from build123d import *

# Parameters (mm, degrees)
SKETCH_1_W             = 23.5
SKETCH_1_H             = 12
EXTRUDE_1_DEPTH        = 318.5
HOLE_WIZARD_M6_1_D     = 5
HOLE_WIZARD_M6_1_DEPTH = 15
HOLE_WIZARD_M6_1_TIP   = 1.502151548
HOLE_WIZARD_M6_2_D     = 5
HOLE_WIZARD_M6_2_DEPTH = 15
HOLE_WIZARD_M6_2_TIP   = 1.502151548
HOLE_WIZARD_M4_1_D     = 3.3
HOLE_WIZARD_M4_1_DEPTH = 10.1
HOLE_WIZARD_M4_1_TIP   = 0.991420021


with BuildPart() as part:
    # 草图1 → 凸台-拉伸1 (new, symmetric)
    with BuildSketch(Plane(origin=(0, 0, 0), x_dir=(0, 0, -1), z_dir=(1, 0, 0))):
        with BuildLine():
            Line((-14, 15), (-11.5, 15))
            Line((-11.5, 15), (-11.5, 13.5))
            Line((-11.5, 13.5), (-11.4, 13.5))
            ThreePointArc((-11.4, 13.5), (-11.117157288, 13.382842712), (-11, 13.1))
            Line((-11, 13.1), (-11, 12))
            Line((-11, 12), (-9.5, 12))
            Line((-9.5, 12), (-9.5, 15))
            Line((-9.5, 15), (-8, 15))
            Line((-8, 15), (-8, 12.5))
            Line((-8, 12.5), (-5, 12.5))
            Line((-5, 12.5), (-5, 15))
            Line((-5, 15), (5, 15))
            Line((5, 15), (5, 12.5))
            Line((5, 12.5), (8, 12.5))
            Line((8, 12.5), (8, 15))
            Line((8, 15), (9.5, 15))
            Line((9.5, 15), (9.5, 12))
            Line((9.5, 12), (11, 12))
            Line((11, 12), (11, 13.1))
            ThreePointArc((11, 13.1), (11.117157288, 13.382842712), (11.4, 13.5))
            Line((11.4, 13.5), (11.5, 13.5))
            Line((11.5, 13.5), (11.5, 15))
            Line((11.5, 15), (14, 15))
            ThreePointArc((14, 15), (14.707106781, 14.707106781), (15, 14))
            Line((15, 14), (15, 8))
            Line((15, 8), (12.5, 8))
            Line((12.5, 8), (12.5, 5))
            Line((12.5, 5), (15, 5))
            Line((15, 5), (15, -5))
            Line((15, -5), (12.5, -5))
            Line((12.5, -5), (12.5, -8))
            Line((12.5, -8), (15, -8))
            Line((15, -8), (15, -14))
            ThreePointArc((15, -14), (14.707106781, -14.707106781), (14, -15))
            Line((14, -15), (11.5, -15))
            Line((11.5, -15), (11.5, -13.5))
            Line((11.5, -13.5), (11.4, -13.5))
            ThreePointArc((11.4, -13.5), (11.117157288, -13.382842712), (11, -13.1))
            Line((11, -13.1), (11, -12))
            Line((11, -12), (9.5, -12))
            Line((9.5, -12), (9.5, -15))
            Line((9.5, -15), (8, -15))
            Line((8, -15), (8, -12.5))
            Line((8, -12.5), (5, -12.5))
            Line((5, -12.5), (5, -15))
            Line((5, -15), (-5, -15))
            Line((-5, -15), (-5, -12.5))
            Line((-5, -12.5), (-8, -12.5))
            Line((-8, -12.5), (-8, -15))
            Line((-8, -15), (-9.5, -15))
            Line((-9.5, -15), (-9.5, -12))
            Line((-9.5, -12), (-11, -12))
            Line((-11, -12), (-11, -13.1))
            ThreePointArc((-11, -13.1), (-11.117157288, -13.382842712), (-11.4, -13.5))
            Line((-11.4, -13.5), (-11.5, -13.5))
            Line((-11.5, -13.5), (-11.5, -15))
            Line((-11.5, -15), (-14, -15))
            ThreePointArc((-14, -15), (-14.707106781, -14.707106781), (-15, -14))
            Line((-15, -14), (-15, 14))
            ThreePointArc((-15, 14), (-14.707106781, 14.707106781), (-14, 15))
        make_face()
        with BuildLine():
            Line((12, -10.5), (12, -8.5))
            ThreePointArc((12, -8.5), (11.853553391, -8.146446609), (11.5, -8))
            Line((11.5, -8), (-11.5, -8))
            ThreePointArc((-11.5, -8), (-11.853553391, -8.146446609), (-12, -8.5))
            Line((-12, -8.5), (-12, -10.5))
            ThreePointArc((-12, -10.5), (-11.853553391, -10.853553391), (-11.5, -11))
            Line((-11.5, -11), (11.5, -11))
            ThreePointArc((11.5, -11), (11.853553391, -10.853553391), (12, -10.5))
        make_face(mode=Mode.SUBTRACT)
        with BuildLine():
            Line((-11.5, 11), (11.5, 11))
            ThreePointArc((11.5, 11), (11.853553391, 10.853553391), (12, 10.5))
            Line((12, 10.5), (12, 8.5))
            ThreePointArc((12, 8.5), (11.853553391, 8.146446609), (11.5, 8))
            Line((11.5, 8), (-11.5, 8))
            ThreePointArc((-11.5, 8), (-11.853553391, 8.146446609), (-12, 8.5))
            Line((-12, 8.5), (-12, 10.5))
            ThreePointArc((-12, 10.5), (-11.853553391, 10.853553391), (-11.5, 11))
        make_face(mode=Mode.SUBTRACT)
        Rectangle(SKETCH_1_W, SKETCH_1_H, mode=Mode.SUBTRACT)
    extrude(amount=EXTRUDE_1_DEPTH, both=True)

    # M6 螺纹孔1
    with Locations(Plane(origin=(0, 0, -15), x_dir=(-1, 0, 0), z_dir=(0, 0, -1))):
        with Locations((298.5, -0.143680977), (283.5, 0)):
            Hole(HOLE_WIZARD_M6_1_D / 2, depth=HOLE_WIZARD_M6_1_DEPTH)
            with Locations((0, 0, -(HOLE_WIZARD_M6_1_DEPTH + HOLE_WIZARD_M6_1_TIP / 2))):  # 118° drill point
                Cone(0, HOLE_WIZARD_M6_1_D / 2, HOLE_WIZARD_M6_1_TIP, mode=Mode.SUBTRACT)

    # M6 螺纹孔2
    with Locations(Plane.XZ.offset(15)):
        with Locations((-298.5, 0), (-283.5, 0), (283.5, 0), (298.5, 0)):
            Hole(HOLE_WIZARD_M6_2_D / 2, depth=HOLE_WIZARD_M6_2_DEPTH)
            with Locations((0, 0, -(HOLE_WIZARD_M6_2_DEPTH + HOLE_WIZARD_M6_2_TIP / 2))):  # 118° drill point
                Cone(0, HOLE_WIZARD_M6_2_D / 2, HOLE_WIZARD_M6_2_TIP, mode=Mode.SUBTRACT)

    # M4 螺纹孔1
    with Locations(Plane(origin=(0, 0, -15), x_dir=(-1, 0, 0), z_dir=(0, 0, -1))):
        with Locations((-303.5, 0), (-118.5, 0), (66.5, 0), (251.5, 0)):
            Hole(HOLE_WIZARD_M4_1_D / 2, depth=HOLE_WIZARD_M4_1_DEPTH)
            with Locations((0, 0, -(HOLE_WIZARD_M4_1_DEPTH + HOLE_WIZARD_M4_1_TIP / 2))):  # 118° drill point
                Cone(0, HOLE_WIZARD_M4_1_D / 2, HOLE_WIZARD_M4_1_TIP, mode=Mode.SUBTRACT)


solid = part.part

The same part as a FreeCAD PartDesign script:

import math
import FreeCAD as App
import Part
import Sketcher
Q = App.Units.Quantity


def add_polygon(sketch, points):
    """Adds a closed chain of lines whose ends are joined by coincident constraints."""
    first, n = sketch.GeometryCount, len(points)
    for a, b in zip(points, points[1:] + points[:1]):
        sketch.addGeometry(Part.LineSegment(App.Vector(*a, 0), App.Vector(*b, 0)), False)
    for i in range(n):
        sketch.addConstraint(Sketcher.Constraint("Coincident", first + i, 2, first + (i + 1) % n, 1))

doc = App.newDocument("Part")
body = doc.addObject("PartDesign::Body", "Body")

sketch1 = doc.addObject("Sketcher::SketchObject", "Sketch")
body.addObject(sketch1)
sketch1.AttachmentSupport = (doc.YZ_Plane, [""])
sketch1.MapMode = "FlatFace"
sketch1.addGeometry(Part.LineSegment(App.Vector(15, 11.5, 0), App.Vector(15, 14, 0)), False)
sketch1.addGeometry(Part.ArcOfCircle(Part.Circle(App.Vector(14, 14, 0), App.Vector(0, 0, 1), 1), math.radians(0), math.radians(90)), False)
sketch1.addGeometry(Part.LineSegment(App.Vector(14, 15, 0), App.Vector(-14, 15, 0)), False)
sketch1.addGeometry(Part.ArcOfCircle(Part.Circle(App.Vector(-14, 14, 0), App.Vector(0, 0, 1), 1), math.radians(90), math.radians(180)), False)
sketch1.addGeometry(Part.LineSegment(App.Vector(-15, 14, 0), App.Vector(-15, 11.5, 0)), False)
sketch1.addGeometry(Part.LineSegment(App.Vector(-15, 11.5, 0), App.Vector(-13.5, 11.5, 0)), False)
sketch1.addGeometry(Part.LineSegment(App.Vector(-13.5, 11.5, 0), App.Vector(-13.5, 11.4, 0)), False)
sketch1.addGeometry(Part.ArcOfCircle(Part.Circle(App.Vector(-13.1, 11.4, 0), App.Vector(0, 0, 1), 0.4), math.radians(-180), math.radians(-90)), False)
sketch1.addGeometry(Part.LineSegment(App.Vector(-13.1, 11, 0), App.Vector(-12, 11, 0)), False)
sketch1.addGeometry(Part.LineSegment(App.Vector(-12, 11, 0), App.Vector(-12, 9.5, 0)), False)
sketch1.addGeometry(Part.LineSegment(App.Vector(-12, 9.5, 0), App.Vector(-15, 9.5, 0)), False)
sketch1.addGeometry(Part.LineSegment(App.Vector(-15, 9.5, 0), App.Vector(-15, 8, 0)), False)
sketch1.addGeometry(Part.LineSegment(App.Vector(-15, 8, 0), App.Vector(-12.5, 8, 0)), False)
sketch1.addGeometry(Part.LineSegment(App.Vector(-12.5, 8, 0), App.Vector(-12.5, 5, 0)), False)
sketch1.addGeometry(Part.LineSegment(App.Vector(-12.5, 5, 0), App.Vector(-15, 5, 0)), False)
sketch1.addGeometry(Part.LineSegment(App.Vector(-15, 5, 0), App.Vector(-15, -5, 0)), False)
sketch1.addGeometry(Part.LineSegment(App.Vector(-15, -5, 0), App.Vector(-12.5, -5, 0)), False)
sketch1.addGeometry(Part.LineSegment(App.Vector(-12.5, -5, 0), App.Vector(-12.5, -8, 0)), False)
sketch1.addGeometry(Part.LineSegment(App.Vector(-12.5, -8, 0), App.Vector(-15, -8, 0)), False)
sketch1.addGeometry(Part.LineSegment(App.Vector(-15, -8, 0), App.Vector(-15, -9.5, 0)), False)
sketch1.addGeometry(Part.LineSegment(App.Vector(-15, -9.5, 0), App.Vector(-12, -9.5, 0)), False)
sketch1.addGeometry(Part.LineSegment(App.Vector(-12, -9.5, 0), App.Vector(-12, -11, 0)), False)
sketch1.addGeometry(Part.LineSegment(App.Vector(-12, -11, 0), App.Vector(-13.1, -11, 0)), False)
sketch1.addGeometry(Part.ArcOfCircle(Part.Circle(App.Vector(-13.1, -11.4, 0), App.Vector(0, 0, 1), 0.4), math.radians(90), math.radians(180)), False)
sketch1.addGeometry(Part.LineSegment(App.Vector(-13.5, -11.4, 0), App.Vector(-13.5, -11.5, 0)), False)
sketch1.addGeometry(Part.LineSegment(App.Vector(-13.5, -11.5, 0), App.Vector(-15, -11.5, 0)), False)
sketch1.addGeometry(Part.LineSegment(App.Vector(-15, -11.5, 0), App.Vector(-15, -14, 0)), False)
sketch1.addGeometry(Part.ArcOfCircle(Part.Circle(App.Vector(-14, -14, 0), App.Vector(0, 0, 1), 1), math.radians(-180), math.radians(-90)), False)
sketch1.addGeometry(Part.LineSegment(App.Vector(-14, -15, 0), App.Vector(-8, -15, 0)), False)
sketch1.addGeometry(Part.LineSegment(App.Vector(-8, -15, 0), App.Vector(-8, -12.5, 0)), False)
sketch1.addGeometry(Part.LineSegment(App.Vector(-8, -12.5, 0), App.Vector(-5, -12.5, 0)), False)
sketch1.addGeometry(Part.LineSegment(App.Vector(-5, -12.5, 0), App.Vector(-5, -15, 0)), False)
sketch1.addGeometry(Part.LineSegment(App.Vector(-5, -15, 0), App.Vector(5, -15, 0)), False)
sketch1.addGeometry(Part.LineSegment(App.Vector(5, -15, 0), App.Vector(5, -12.5, 0)), False)
sketch1.addGeometry(Part.LineSegment(App.Vector(5, -12.5, 0), App.Vector(8, -12.5, 0)), False)
sketch1.addGeometry(Part.LineSegment(App.Vector(8, -12.5, 0), App.Vector(8, -15, 0)), False)
sketch1.addGeometry(Part.LineSegment(App.Vector(8, -15, 0), App.Vector(14, -15, 0)), False)
sketch1.addGeometry(Part.ArcOfCircle(Part.Circle(App.Vector(14, -14, 0), App.Vector(0, 0, 1), 1), math.radians(-90), math.radians(0)), False)
sketch1.addGeometry(Part.LineSegment(App.Vector(15, -14, 0), App.Vector(15, -11.5, 0)), False)
sketch1.addGeometry(Part.LineSegment(App.Vector(15, -11.5, 0), App.Vector(13.5, -11.5, 0)), False)
sketch1.addGeometry(Part.LineSegment(App.Vector(13.5, -11.5, 0), App.Vector(13.5, -11.4, 0)), False)
sketch1.addGeometry(Part.ArcOfCircle(Part.Circle(App.Vector(13.1, -11.4, 0), App.Vector(0, 0, 1), 0.4), math.radians(0), math.radians(90)), False)
sketch1.addGeometry(Part.LineSegment(App.Vector(13.1, -11, 0), App.Vector(12, -11, 0)), False)
sketch1.addGeometry(Part.LineSegment(App.Vector(12, -11, 0), App.Vector(12, -9.5, 0)), False)
sketch1.addGeometry(Part.LineSegment(App.Vector(12, -9.5, 0), App.Vector(15, -9.5, 0)), False)
sketch1.addGeometry(Part.LineSegment(App.Vector(15, -9.5, 0), App.Vector(15, -8, 0)), False)
sketch1.addGeometry(Part.LineSegment(App.Vector(15, -8, 0), App.Vector(12.5, -8, 0)), False)
sketch1.addGeometry(Part.LineSegment(App.Vector(12.5, -8, 0), App.Vector(12.5, -5, 0)), False)
sketch1.addGeometry(Part.LineSegment(App.Vector(12.5, -5, 0), App.Vector(15, -5, 0)), False)
sketch1.addGeometry(Part.LineSegment(App.Vector(15, -5, 0), App.Vector(15, 5, 0)), False)
sketch1.addGeometry(Part.LineSegment(App.Vector(15, 5, 0), App.Vector(12.5, 5, 0)), False)
sketch1.addGeometry(Part.LineSegment(App.Vector(12.5, 5, 0), App.Vector(12.5, 8, 0)), False)
sketch1.addGeometry(Part.LineSegment(App.Vector(12.5, 8, 0), App.Vector(15, 8, 0)), False)
sketch1.addGeometry(Part.LineSegment(App.Vector(15, 8, 0), App.Vector(15, 9.5, 0)), False)
sketch1.addGeometry(Part.LineSegment(App.Vector(15, 9.5, 0), App.Vector(12, 9.5, 0)), False)
sketch1.addGeometry(Part.LineSegment(App.Vector(12, 9.5, 0), App.Vector(12, 11, 0)), False)
sketch1.addGeometry(Part.LineSegment(App.Vector(12, 11, 0), App.Vector(13.1, 11, 0)), False)
sketch1.addGeometry(Part.ArcOfCircle(Part.Circle(App.Vector(13.1, 11.4, 0), App.Vector(0, 0, 1), 0.4), math.radians(-90), math.radians(0)), False)
sketch1.addGeometry(Part.LineSegment(App.Vector(13.5, 11.4, 0), App.Vector(13.5, 11.5, 0)), False)
sketch1.addGeometry(Part.LineSegment(App.Vector(13.5, 11.5, 0), App.Vector(15, 11.5, 0)), False)
sketch1.addGeometry(Part.ArcOfCircle(Part.Circle(App.Vector(-10.5, -11.5, 0), App.Vector(0, 0, 1), 0.5), math.radians(180), math.radians(270)), False)
sketch1.addGeometry(Part.LineSegment(App.Vector(-11, -11.5, 0), App.Vector(-11, 11.5, 0)), False)
sketch1.addGeometry(Part.ArcOfCircle(Part.Circle(App.Vector(-10.5, 11.5, 0), App.Vector(0, 0, 1), 0.5), math.radians(90), math.radians(180)), False)
sketch1.addGeometry(Part.LineSegment(App.Vector(-10.5, 12, 0), App.Vector(-8.5, 12, 0)), False)
sketch1.addGeometry(Part.ArcOfCircle(Part.Circle(App.Vector(-8.5, 11.5, 0), App.Vector(0, 0, 1), 0.5), math.radians(0), math.radians(90)), False)
sketch1.addGeometry(Part.LineSegment(App.Vector(-8, 11.5, 0), App.Vector(-8, -11.5, 0)), False)
sketch1.addGeometry(Part.ArcOfCircle(Part.Circle(App.Vector(-8.5, -11.5, 0), App.Vector(0, 0, 1), 0.5), math.radians(-90), math.radians(0)), False)
sketch1.addGeometry(Part.LineSegment(App.Vector(-8.5, -12, 0), App.Vector(-10.5, -12, 0)), False)
add_polygon(sketch1, [(-6, 11.75), (6, 11.75), (6, -11.75), (-6, -11.75)])
sketch1.addGeometry(Part.LineSegment(App.Vector(11, 11.5, 0), App.Vector(11, -11.5, 0)), False)
sketch1.addGeometry(Part.ArcOfCircle(Part.Circle(App.Vector(10.5, -11.5, 0), App.Vector(0, 0, 1), 0.5), math.radians(-90), math.radians(0)), False)
sketch1.addGeometry(Part.LineSegment(App.Vector(10.5, -12, 0), App.Vector(8.5, -12, 0)), False)
sketch1.addGeometry(Part.ArcOfCircle(Part.Circle(App.Vector(8.5, -11.5, 0), App.Vector(0, 0, 1), 0.5), math.radians(180), math.radians(270)), False)
sketch1.addGeometry(Part.LineSegment(App.Vector(8, -11.5, 0), App.Vector(8, 11.5, 0)), False)
sketch1.addGeometry(Part.ArcOfCircle(Part.Circle(App.Vector(8.5, 11.5, 0), App.Vector(0, 0, 1), 0.5), math.radians(90), math.radians(180)), False)
sketch1.addGeometry(Part.LineSegment(App.Vector(8.5, 12, 0), App.Vector(10.5, 12, 0)), False)
sketch1.addGeometry(Part.ArcOfCircle(Part.Circle(App.Vector(10.5, 11.5, 0), App.Vector(0, 0, 1), 0.5), math.radians(0), math.radians(90)), False)
sketch1.addConstraint([
    Sketcher.Constraint("Tangent", 0, 2, 1, 1),
    Sketcher.Constraint("Tangent", 1, 2, 2, 1),
    Sketcher.Constraint("Tangent", 2, 2, 3, 1),
    Sketcher.Constraint("Tangent", 3, 2, 4, 1),
    Sketcher.Constraint("Coincident", 4, 2, 5, 1),
    Sketcher.Constraint("Coincident", 5, 2, 6, 1),
    Sketcher.Constraint("Tangent", 6, 2, 7, 1),
    Sketcher.Constraint("Tangent", 7, 2, 8, 1),
    Sketcher.Constraint("Coincident", 8, 2, 9, 1),
    Sketcher.Constraint("Coincident", 9, 2, 10, 1),
    Sketcher.Constraint("Coincident", 10, 2, 11, 1),
    Sketcher.Constraint("Coincident", 11, 2, 12, 1),
    Sketcher.Constraint("Coincident", 12, 2, 13, 1),
    Sketcher.Constraint("Coincident", 13, 2, 14, 1),
    Sketcher.Constraint("Coincident", 14, 2, 15, 1),
    Sketcher.Constraint("Coincident", 15, 2, 16, 1),
    Sketcher.Constraint("Coincident", 16, 2, 17, 1),
    Sketcher.Constraint("Coincident", 17, 2, 18, 1),
    Sketcher.Constraint("Coincident", 18, 2, 19, 1),
    Sketcher.Constraint("Coincident", 19, 2, 20, 1),
    Sketcher.Constraint("Coincident", 20, 2, 21, 1),
    Sketcher.Constraint("Coincident", 21, 2, 22, 1),
    Sketcher.Constraint("Tangent", 22, 2, 23, 1),
    Sketcher.Constraint("Tangent", 23, 2, 24, 1),
    Sketcher.Constraint("Coincident", 24, 2, 25, 1),
    Sketcher.Constraint("Coincident", 25, 2, 26, 1),
    Sketcher.Constraint("Tangent", 26, 2, 27, 1),
    Sketcher.Constraint("Tangent", 27, 2, 28, 1),
    Sketcher.Constraint("Coincident", 28, 2, 29, 1),
    Sketcher.Constraint("Coincident", 29, 2, 30, 1),
    Sketcher.Constraint("Coincident", 30, 2, 31, 1),
    Sketcher.Constraint("Coincident", 31, 2, 32, 1),
    Sketcher.Constraint("Coincident", 32, 2, 33, 1),
    Sketcher.Constraint("Coincident", 33, 2, 34, 1),
    Sketcher.Constraint("Coincident", 34, 2, 35, 1),
    Sketcher.Constraint("Coincident", 35, 2, 36, 1),
    Sketcher.Constraint("Tangent", 36, 2, 37, 1),
    Sketcher.Constraint("Tangent", 37, 2, 38, 1),
    Sketcher.Constraint("Coincident", 38, 2, 39, 1),
    Sketcher.Constraint("Coincident", 39, 2, 40, 1),
    Sketcher.Constraint("Tangent", 40, 2, 41, 1),
    Sketcher.Constraint("Tangent", 41, 2, 42, 1),
    Sketcher.Constraint("Coincident", 42, 2, 43, 1),
    Sketcher.Constraint("Coincident", 43, 2, 44, 1),
    Sketcher.Constraint("Coincident", 44, 2, 45, 1),
    Sketcher.Constraint("Coincident", 45, 2, 46, 1),
    Sketcher.Constraint("Coincident", 46, 2, 47, 1),
    Sketcher.Constraint("Coincident", 47, 2, 48, 1),
    Sketcher.Constraint("Coincident", 48, 2, 49, 1),
    Sketcher.Constraint("Coincident", 49, 2, 50, 1),
    Sketcher.Constraint("Coincident", 50, 2, 51, 1),
    Sketcher.Constraint("Coincident", 51, 2, 52, 1),
    Sketcher.Constraint("Coincident", 52, 2, 53, 1),
    Sketcher.Constraint("Coincident", 53, 2, 54, 1),
    Sketcher.Constraint("Coincident", 54, 2, 55, 1),
    Sketcher.Constraint("Coincident", 55, 2, 56, 1),
    Sketcher.Constraint("Tangent", 56, 2, 57, 1),
    Sketcher.Constraint("Tangent", 57, 2, 58, 1),
    Sketcher.Constraint("Coincident", 58, 2, 59, 1),
    Sketcher.Constraint("Coincident", 59, 2, 0, 1),
    Sketcher.Constraint("Tangent", 60, 1, 61, 1),
    Sketcher.Constraint("Tangent", 61, 2, 62, 2),
    Sketcher.Constraint("Tangent", 62, 1, 63, 1),
    Sketcher.Constraint("Tangent", 63, 2, 64, 2),
    Sketcher.Constraint("Tangent", 64, 1, 65, 1),
    Sketcher.Constraint("Tangent", 65, 2, 66, 2),
    Sketcher.Constraint("Tangent", 66, 1, 67, 1),
    Sketcher.Constraint("Tangent", 67, 2, 60, 2),
    Sketcher.Constraint("Tangent", 72, 2, 73, 2),
    Sketcher.Constraint("Tangent", 73, 1, 74, 1),
    Sketcher.Constraint("Tangent", 74, 2, 75, 2),
    Sketcher.Constraint("Tangent", 75, 1, 76, 1),
    Sketcher.Constraint("Tangent", 76, 2, 77, 2),
    Sketcher.Constraint("Tangent", 77, 1, 78, 1),
    Sketcher.Constraint("Tangent", 78, 2, 79, 2),
    Sketcher.Constraint("Tangent", 79, 1, 72, 1),
    Sketcher.Constraint("Vertical", 0),
    Sketcher.Constraint("Horizontal", 2),
    Sketcher.Constraint("Vertical", 4),
    Sketcher.Constraint("Horizontal", 5),
    Sketcher.Constraint("Vertical", 6),
    Sketcher.Constraint("Horizontal", 8),
    Sketcher.Constraint("Vertical", 9),
    Sketcher.Constraint("Horizontal", 10),
    Sketcher.Constraint("Vertical", 11),
    Sketcher.Constraint("Horizontal", 12),
    Sketcher.Constraint("Vertical", 13),
    Sketcher.Constraint("Horizontal", 14),
    Sketcher.Constraint("Vertical", 15),
    Sketcher.Constraint("Horizontal", 16),
    Sketcher.Constraint("Vertical", 17),
    Sketcher.Constraint("Horizontal", 18),
    Sketcher.Constraint("Vertical", 19),
    Sketcher.Constraint("Horizontal", 20),
    Sketcher.Constraint("Vertical", 21),
    Sketcher.Constraint("Horizontal", 22),
    Sketcher.Constraint("Vertical", 24),
    Sketcher.Constraint("Horizontal", 25),
    Sketcher.Constraint("Vertical", 26),
    Sketcher.Constraint("Horizontal", 28),
    Sketcher.Constraint("Vertical", 29),
    Sketcher.Constraint("Horizontal", 30),
    Sketcher.Constraint("Vertical", 31),
    Sketcher.Constraint("Horizontal", 32),
    Sketcher.Constraint("Vertical", 33),
    Sketcher.Constraint("Horizontal", 34),
    Sketcher.Constraint("Vertical", 35),
    Sketcher.Constraint("Horizontal", 36),
    Sketcher.Constraint("Vertical", 38),
    Sketcher.Constraint("Horizontal", 39),
    Sketcher.Constraint("Vertical", 40),
    Sketcher.Constraint("Horizontal", 42),
    Sketcher.Constraint("Vertical", 43),
    Sketcher.Constraint("Horizontal", 44),
    Sketcher.Constraint("Vertical", 45),
    Sketcher.Constraint("Horizontal", 46),
    Sketcher.Constraint("Vertical", 47),
    Sketcher.Constraint("Horizontal", 48),
    Sketcher.Constraint("Vertical", 49),
    Sketcher.Constraint("Horizontal", 50),
    Sketcher.Constraint("Vertical", 51),
    Sketcher.Constraint("Horizontal", 52),
    Sketcher.Constraint("Vertical", 53),
    Sketcher.Constraint("Horizontal", 54),
    Sketcher.Constraint("Vertical", 55),
    Sketcher.Constraint("Horizontal", 56),
    Sketcher.Constraint("Vertical", 58),
    Sketcher.Constraint("Horizontal", 59),
    Sketcher.Constraint("Vertical", 61),
    Sketcher.Constraint("Horizontal", 63),
    Sketcher.Constraint("Vertical", 65),
    Sketcher.Constraint("Horizontal", 67),
    Sketcher.Constraint("Horizontal", 68),
    Sketcher.Constraint("Vertical", 69),
    Sketcher.Constraint("Horizontal", 70),
    Sketcher.Constraint("Vertical", 71),
    Sketcher.Constraint("Vertical", 72),
    Sketcher.Constraint("Horizontal", 74),
    Sketcher.Constraint("Vertical", 76),
    Sketcher.Constraint("Horizontal", 78),
    Sketcher.Constraint("Equal", 1, 3),
    Sketcher.Constraint("Equal", 7, 23),
    Sketcher.Constraint("Equal", 3, 27),
    Sketcher.Constraint("Equal", 27, 37),
    Sketcher.Constraint("Equal", 23, 41),
    Sketcher.Constraint("Equal", 41, 57),
    Sketcher.Constraint("Equal", 60, 62),
    Sketcher.Constraint("Equal", 62, 64),
    Sketcher.Constraint("Equal", 64, 66),
    Sketcher.Constraint("Equal", 66, 73),
    Sketcher.Constraint("Equal", 73, 75),
    Sketcher.Constraint("Equal", 75, 77),
    Sketcher.Constraint("Equal", 77, 79),
    Sketcher.Constraint("Symmetric", 1, 3, 27, 3, -1, 1),
    Sketcher.Constraint("Symmetric", 3, 3, 37, 3, -1, 1),
    Sketcher.Constraint("Symmetric", 7, 3, 41, 3, -1, 1),
    Sketcher.Constraint("Symmetric", 23, 3, 57, 3, -1, 1),
    Sketcher.Constraint("Symmetric", 62, 3, 73, 3, -1, 1),
    Sketcher.Constraint("Symmetric", 66, 3, 77, 3, -1, 1),
    Sketcher.Constraint("Symmetric", 9, 2, 43, 2, -1, 1),
    Sketcher.Constraint("Symmetric", 11, 2, 45, 2, -1, 1),
    Sketcher.Constraint("Symmetric", 13, 2, 47, 2, -1, 1),
    Sketcher.Constraint("Symmetric", 15, 2, 49, 2, -1, 1),
    Sketcher.Constraint("Symmetric", 17, 2, 51, 2, -1, 1),
    Sketcher.Constraint("Symmetric", 19, 2, 53, 2, -1, 1),
    Sketcher.Constraint("Symmetric", 68, 2, 70, 2, -1, 1),
    Sketcher.Constraint("Symmetric", 23, 3, 41, 3, -2),
    Sketcher.Constraint("Symmetric", 30, 2, 33, 2, -2),
    Sketcher.Constraint("Symmetric", 25, 2, 38, 2, -2),
    Sketcher.Constraint("Symmetric", 20, 2, 43, 2, -2),
    Sketcher.Constraint("Symmetric", 18, 2, 45, 2, -2),
    Sketcher.Constraint("Symmetric", 16, 2, 47, 2, -2),
    Sketcher.Constraint("Horizontal", 66, 3, 73, 3),
    Sketcher.Constraint("Horizontal", 79, 3, 4, 2),
    Sketcher.Constraint("Horizontal", 75, 3, 24, 2),
    Sketcher.Constraint("Horizontal", 28, 2, 31, 2),
    Sketcher.Constraint("Horizontal", 5, 2, 58, 2),
    Sketcher.Constraint("Vertical", 4, 2, 10, 2),
    Sketcher.Constraint("Vertical", 11, 2, 14, 2),
    Sketcher.Constraint("Vertical", 43, 2, 54, 2),
    Sketcher.Constraint("Vertical", 29, 2, 64, 1),
    Sketcher.Constraint("Vertical", 35, 2, 75, 1),
    Sketcher.Constraint("Equal", 20, 30),
    Sketcher.Constraint("Equal", 52, 0),
    Sketcher.Constraint("Equal", 59, 9),
    Sketcher.Constraint("Equal", 9, 11),
    Sketcher.Constraint("Equal", 54, 13),
    Sketcher.Constraint("Equal", 32, 15),
    Sketcher.Constraint("Equal", 26, 29),
    Sketcher.Constraint("Radius", 1, Q("1 mm")),
    Sketcher.Constraint("Radius", 7, Q("0.4 mm")),
    Sketcher.Constraint("Radius", 60, Q("0.5 mm")),
    Sketcher.Constraint("DistanceX", 2, 2, 2, 1, Q("28 mm")),
    Sketcher.Constraint("DistanceX", 10, 2, 10, 1, Q("3 mm")),
    Sketcher.Constraint("DistanceX", 28, 1, 28, 2, Q("6 mm")),
    Sketcher.Constraint("DistanceX", 63, 1, 63, 2, Q("2 mm")),
    Sketcher.Constraint("DistanceX", 68, 1, 68, 2, Q("12 mm")),
    Sketcher.Constraint("DistanceY", 61, 1, 61, 2, Q("23 mm")),
    Sketcher.Constraint("DistanceX", 5, 1, 5, 2, Q("1.5 mm")),
    Sketcher.Constraint("DistanceX", 12, 1, 12, 2, Q("2.5 mm")),
    Sketcher.Constraint("DistanceY", 69, 2, 69, 1, Q("23.5 mm")),
])
pad1 = doc.addObject("PartDesign::Pad", "Pad")
body.addObject(pad1)
pad1.Profile = sketch1
pad1.Length = 637
pad1.Midplane = True

sketch2 = doc.addObject("Sketcher::SketchObject", "Sketch001")
body.addObject(sketch2)
sketch2.AttachmentSupport = (doc.XY_Plane, [""])
sketch2.MapMode = "FlatFace"
sketch2.AttachmentOffset = App.Placement(App.Vector(0, 0, -15), App.Rotation())
sketch2.addGeometry([
    Part.Circle(App.Vector(-298.5, -0.143681, 0), App.Vector(0, 0, 1), 2.5),
    Part.Circle(App.Vector(-283.5, 0, 0), App.Vector(0, 0, 1), 2.5),
], False)
sketch2.addConstraint([
    Sketcher.Constraint("Equal", 0, 1),
    Sketcher.Constraint("PointOnObject", 1, 3, -1),
    Sketcher.Constraint("Diameter", 0, Q("5 mm")),
    Sketcher.Constraint("DistanceX", 0, 3, 1, 3, Q("15 mm")),
    Sketcher.Constraint("DistanceX", 0, 3, -1, 1, Q("298.5 mm")),
    Sketcher.Constraint("DistanceY", 0, 3, -1, 1, Q("0.143681 mm")),
])
doc.recompute()
hole = doc.addObject("PartDesign::Hole", "Hole")
body.addObject(hole)
hole.Profile = sketch2
hole.ThreadType = "None"
hole.Diameter = 5
hole.DepthType = "Dimension"
hole.Depth = 15
hole.DrillPoint = "Angled"
hole.DrillPointAngle = 118
hole.Reversed = True

sketch3 = doc.addObject("Sketcher::SketchObject", "Sketch002")
body.addObject(sketch3)
sketch3.AttachmentSupport = (doc.XZ_Plane, [""])
sketch3.MapMode = "FlatFace"
sketch3.AttachmentOffset = App.Placement(App.Vector(0, 0, 15), App.Rotation())
sketch3.addGeometry([
    Part.Circle(App.Vector(-298.5, 0, 0), App.Vector(0, 0, 1), 2.5),
    Part.Circle(App.Vector(-283.5, 0, 0), App.Vector(0, 0, 1), 2.5),
    Part.Circle(App.Vector(283.5, 0, 0), App.Vector(0, 0, 1), 2.5),
    Part.Circle(App.Vector(298.5, 0, 0), App.Vector(0, 0, 1), 2.5),
], False)
sketch3.addConstraint([
    Sketcher.Constraint("Equal", 0, 1),
    Sketcher.Constraint("Equal", 1, 2),
    Sketcher.Constraint("Equal", 2, 3),
    Sketcher.Constraint("Symmetric", 1, 3, 2, 3, -1, 1),
    Sketcher.Constraint("Symmetric", 0, 3, 3, 3, -1, 1),
    Sketcher.Constraint("PointOnObject", 0, 3, -1),
    Sketcher.Constraint("PointOnObject", 1, 3, -1),
    Sketcher.Constraint("Diameter", 0, Q("5 mm")),
    Sketcher.Constraint("DistanceX", 0, 3, 1, 3, Q("15 mm")),
    Sketcher.Constraint("DistanceX", 1, 3, 2, 3, Q("567 mm")),
])
doc.recompute()
hole2 = doc.addObject("PartDesign::Hole", "Hole001")
body.addObject(hole2)
hole2.Profile = sketch3
hole2.ThreadType = "None"
hole2.Diameter = 5
hole2.DepthType = "Dimension"
hole2.Depth = 15
hole2.DrillPoint = "Angled"
hole2.DrillPointAngle = 118

sketch4 = doc.addObject("Sketcher::SketchObject", "Sketch003")
body.addObject(sketch4)
sketch4.AttachmentSupport = (doc.XY_Plane, [""])
sketch4.MapMode = "FlatFace"
sketch4.AttachmentOffset = App.Placement(App.Vector(0, 0, -15), App.Rotation())
sketch4.addGeometry([
    Part.Circle(App.Vector(303.5, 0, 0), App.Vector(0, 0, 1), 1.65),
    Part.Circle(App.Vector(118.5, 0, 0), App.Vector(0, 0, 1), 1.65),
    Part.Circle(App.Vector(-66.5, 0, 0), App.Vector(0, 0, 1), 1.65),
    Part.Circle(App.Vector(-251.5, 0, 0), App.Vector(0, 0, 1), 1.65),
], False)
sketch4.addConstraint([
    Sketcher.Constraint("Equal", 0, 1),
    Sketcher.Constraint("Equal", 1, 2),
    Sketcher.Constraint("Equal", 2, 3),
    Sketcher.Constraint("PointOnObject", 0, 3, -1),
    Sketcher.Constraint("PointOnObject", 1, 3, -1),
    Sketcher.Constraint("PointOnObject", 2, 3, -1),
    Sketcher.Constraint("PointOnObject", 3, 3, -1),
    Sketcher.Constraint("Diameter", 0, Q("3.3 mm")),
    Sketcher.Constraint("DistanceX", 1, 3, 0, 3, Q("185 mm")),
    Sketcher.Constraint("DistanceX", 2, 3, 1, 3, Q("185 mm")),
    Sketcher.Constraint("DistanceX", 3, 3, 2, 3, Q("185 mm")),
    Sketcher.Constraint("DistanceX", -1, 1, 0, 3, Q("303.5 mm")),
])
doc.recompute()
hole3 = doc.addObject("PartDesign::Hole", "Hole002")
body.addObject(hole3)
hole3.Profile = sketch4
hole3.ThreadType = "None"
hole3.Diameter = 3.3
hole3.DepthType = "Dimension"
hole3.Depth = 10.1
hole3.DrillPoint = "Angled"
hole3.DrillPointAngle = 118
hole3.Reversed = True

doc.recompute()
